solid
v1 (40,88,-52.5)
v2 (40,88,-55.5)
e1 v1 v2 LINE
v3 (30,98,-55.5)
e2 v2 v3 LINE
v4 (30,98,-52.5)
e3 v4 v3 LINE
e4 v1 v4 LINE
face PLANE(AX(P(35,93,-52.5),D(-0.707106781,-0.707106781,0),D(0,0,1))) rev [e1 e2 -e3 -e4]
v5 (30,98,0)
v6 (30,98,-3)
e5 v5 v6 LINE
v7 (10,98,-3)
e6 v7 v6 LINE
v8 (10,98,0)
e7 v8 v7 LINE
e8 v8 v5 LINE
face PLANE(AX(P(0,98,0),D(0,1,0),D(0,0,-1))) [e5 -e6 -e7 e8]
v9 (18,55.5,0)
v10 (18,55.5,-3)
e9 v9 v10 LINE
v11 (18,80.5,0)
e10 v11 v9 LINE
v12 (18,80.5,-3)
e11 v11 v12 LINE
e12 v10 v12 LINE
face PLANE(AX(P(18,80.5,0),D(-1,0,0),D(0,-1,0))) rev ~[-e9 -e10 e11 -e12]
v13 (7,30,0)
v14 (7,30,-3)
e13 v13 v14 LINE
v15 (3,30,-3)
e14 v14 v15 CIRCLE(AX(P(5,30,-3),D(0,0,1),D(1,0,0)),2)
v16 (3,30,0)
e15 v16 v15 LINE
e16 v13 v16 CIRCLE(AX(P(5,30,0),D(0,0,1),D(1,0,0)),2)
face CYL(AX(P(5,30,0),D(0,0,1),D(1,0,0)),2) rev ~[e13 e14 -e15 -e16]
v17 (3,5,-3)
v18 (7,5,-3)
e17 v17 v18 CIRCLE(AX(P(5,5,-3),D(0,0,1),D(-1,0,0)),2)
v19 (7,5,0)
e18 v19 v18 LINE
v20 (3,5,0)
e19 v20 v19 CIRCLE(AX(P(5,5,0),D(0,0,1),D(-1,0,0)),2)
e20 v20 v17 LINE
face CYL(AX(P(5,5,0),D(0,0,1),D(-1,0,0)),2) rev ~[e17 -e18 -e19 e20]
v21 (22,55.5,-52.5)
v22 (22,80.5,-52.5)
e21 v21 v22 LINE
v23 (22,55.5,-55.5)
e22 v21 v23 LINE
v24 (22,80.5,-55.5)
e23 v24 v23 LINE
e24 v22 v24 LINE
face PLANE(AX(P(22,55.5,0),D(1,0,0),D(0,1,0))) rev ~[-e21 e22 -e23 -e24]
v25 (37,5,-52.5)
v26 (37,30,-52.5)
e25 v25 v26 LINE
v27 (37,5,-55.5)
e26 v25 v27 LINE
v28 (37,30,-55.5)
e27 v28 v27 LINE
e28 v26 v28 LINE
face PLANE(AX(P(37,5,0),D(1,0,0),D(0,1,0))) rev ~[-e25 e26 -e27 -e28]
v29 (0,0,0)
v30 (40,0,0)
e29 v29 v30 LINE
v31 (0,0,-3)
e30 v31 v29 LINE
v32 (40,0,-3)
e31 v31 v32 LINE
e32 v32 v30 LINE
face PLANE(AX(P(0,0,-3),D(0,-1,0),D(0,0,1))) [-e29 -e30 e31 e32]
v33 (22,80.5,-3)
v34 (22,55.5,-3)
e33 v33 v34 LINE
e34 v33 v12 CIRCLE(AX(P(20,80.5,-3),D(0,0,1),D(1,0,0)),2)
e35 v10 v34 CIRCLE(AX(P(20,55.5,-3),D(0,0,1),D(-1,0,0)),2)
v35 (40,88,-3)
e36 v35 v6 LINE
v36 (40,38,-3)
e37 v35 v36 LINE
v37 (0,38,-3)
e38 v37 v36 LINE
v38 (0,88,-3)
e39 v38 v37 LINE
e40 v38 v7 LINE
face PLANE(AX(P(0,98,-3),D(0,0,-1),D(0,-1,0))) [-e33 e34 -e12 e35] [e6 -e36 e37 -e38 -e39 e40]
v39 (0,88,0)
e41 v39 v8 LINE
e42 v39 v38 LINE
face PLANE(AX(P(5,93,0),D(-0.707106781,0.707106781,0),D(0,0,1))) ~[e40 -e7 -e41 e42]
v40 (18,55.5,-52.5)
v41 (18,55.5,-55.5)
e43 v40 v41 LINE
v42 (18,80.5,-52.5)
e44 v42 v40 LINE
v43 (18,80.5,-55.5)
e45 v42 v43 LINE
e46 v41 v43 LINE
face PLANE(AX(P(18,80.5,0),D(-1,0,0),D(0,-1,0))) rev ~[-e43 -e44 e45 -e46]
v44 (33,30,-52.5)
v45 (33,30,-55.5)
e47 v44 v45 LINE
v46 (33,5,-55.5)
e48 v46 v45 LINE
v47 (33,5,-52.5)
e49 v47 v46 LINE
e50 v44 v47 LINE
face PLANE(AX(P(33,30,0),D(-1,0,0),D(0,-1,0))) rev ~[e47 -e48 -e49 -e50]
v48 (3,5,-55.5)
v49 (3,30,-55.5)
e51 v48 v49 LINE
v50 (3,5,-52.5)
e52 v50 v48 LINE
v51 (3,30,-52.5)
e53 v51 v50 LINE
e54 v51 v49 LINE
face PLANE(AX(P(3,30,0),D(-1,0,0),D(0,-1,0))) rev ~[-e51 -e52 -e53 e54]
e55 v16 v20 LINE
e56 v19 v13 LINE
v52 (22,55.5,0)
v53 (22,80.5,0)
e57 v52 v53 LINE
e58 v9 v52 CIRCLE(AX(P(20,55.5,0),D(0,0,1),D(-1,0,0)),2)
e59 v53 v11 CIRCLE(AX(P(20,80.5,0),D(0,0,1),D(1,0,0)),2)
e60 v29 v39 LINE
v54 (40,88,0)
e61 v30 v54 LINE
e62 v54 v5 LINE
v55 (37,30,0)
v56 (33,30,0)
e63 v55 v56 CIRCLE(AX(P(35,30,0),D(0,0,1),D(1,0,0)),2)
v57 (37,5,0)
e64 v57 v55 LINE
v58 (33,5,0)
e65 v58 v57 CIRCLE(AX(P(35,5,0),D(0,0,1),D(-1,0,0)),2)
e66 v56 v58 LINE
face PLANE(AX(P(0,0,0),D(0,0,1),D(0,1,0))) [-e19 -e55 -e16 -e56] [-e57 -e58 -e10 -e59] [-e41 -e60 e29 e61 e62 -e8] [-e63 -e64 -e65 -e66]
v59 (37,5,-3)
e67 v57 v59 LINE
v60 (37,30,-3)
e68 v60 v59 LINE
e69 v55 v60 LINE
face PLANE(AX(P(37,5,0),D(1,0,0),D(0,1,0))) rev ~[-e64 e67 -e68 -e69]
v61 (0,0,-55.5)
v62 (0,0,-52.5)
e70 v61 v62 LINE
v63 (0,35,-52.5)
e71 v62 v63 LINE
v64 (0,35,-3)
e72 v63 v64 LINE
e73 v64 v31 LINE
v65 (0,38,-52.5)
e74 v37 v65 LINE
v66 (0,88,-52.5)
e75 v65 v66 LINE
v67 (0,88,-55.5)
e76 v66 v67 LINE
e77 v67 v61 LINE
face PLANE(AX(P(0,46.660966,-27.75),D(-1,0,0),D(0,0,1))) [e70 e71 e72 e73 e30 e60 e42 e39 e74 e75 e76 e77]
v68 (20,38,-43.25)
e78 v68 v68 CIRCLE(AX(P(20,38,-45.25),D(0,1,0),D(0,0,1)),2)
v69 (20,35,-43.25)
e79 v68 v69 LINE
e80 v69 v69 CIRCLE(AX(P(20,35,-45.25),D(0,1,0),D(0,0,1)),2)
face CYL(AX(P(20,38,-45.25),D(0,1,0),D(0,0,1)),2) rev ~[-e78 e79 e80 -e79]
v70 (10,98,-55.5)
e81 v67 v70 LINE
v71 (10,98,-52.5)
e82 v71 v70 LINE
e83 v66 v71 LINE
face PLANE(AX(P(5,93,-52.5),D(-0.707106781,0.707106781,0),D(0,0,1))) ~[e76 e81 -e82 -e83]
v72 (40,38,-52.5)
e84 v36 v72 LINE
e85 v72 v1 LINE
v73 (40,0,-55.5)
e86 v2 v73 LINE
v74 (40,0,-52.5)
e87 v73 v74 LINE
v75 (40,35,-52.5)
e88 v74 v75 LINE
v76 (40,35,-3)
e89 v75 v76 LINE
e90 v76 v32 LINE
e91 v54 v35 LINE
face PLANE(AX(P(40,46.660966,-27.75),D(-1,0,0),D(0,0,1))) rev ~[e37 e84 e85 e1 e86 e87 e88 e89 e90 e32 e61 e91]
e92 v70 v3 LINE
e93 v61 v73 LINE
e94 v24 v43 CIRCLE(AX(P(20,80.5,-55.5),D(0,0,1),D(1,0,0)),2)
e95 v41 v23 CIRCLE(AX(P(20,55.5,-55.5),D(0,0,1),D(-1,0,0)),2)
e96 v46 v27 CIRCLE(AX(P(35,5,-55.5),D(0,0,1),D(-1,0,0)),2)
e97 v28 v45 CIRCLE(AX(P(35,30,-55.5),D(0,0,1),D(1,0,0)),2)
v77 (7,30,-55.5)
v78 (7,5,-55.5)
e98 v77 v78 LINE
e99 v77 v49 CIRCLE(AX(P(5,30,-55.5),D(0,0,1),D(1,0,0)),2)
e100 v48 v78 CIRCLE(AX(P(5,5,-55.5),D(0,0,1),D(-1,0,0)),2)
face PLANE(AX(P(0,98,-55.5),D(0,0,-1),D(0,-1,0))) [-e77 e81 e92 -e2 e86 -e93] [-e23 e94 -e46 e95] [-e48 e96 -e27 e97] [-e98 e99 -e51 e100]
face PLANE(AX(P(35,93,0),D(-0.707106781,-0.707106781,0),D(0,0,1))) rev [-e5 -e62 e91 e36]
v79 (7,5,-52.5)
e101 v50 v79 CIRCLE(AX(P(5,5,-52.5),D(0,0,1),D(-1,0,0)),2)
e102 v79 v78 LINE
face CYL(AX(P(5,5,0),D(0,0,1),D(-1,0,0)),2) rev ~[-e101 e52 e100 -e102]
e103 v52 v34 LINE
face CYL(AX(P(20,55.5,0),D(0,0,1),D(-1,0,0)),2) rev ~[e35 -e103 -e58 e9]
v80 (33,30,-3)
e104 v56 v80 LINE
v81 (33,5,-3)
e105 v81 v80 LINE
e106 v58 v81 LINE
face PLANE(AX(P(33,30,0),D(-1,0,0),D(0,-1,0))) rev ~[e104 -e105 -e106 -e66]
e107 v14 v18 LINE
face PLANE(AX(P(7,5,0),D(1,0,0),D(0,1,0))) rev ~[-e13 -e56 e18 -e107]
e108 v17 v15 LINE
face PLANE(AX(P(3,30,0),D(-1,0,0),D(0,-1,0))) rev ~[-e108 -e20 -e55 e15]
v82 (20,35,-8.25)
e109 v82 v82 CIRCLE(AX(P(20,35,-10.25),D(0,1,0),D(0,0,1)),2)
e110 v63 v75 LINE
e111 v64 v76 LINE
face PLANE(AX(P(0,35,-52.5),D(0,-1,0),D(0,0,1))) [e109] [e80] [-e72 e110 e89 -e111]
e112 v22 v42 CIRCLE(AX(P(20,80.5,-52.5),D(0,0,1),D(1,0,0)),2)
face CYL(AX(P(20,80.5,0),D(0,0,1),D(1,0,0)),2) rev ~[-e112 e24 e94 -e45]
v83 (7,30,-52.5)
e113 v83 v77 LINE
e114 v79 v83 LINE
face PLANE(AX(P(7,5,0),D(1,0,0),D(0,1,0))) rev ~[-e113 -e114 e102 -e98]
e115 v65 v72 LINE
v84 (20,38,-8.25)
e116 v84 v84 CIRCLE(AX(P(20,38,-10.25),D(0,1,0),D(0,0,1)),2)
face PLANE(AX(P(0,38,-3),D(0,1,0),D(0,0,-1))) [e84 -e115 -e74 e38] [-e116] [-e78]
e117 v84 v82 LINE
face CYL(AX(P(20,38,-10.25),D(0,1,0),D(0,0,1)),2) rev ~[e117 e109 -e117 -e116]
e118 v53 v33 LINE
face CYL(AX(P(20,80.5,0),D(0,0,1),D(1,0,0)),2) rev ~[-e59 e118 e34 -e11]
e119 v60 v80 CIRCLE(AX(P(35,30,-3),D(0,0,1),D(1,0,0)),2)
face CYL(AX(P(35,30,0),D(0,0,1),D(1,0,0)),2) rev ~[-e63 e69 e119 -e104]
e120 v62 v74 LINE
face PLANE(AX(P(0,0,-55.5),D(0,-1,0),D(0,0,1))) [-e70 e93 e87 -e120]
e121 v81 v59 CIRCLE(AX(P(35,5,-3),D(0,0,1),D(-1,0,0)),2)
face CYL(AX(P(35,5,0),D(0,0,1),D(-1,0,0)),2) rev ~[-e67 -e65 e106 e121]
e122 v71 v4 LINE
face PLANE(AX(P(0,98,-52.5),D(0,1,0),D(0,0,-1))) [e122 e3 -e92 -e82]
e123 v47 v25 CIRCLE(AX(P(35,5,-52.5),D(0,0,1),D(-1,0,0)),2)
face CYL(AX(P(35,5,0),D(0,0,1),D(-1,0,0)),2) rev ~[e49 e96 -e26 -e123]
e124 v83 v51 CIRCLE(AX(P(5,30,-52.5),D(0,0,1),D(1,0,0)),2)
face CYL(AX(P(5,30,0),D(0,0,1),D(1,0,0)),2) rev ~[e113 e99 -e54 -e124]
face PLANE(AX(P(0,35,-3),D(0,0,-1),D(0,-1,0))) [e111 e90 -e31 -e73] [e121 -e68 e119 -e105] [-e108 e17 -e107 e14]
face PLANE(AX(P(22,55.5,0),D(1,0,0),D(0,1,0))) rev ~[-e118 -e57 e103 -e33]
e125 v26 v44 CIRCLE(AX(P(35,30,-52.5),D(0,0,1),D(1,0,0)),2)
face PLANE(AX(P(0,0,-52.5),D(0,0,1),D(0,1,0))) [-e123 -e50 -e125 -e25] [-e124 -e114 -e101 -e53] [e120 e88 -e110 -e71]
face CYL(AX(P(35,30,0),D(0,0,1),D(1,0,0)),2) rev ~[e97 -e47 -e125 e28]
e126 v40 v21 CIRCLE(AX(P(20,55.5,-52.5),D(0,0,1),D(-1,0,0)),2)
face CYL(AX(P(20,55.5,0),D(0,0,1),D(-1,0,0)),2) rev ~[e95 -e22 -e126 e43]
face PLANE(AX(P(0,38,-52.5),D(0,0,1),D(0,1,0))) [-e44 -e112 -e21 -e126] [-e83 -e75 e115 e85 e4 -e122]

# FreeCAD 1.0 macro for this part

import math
import FreeCAD as App
import Part
import Sketcher
from FreeCAD import Vector
Q = App.Units.Quantity


def edges_at(feature, points):
    """Names of the edges that pass closest to the given points."""
    edges = feature.Shape.Edges
    near = lambda p: min(range(len(edges)), key=lambda i: edges[i].distToShape(Part.Vertex(*p))[0])
    return sorted({f"Edge{near(p) + 1}" for p in points})

doc = App.newDocument("Part")
params = doc.addObject("Spreadsheet::Sheet", "Params")
for row, (alias, value) in enumerate([
    ("sketch1_width", "98 mm"),
    ("sketch1_width2", "35 mm"),
    ("sketch1_width3", "60 mm"),
    ("sketch1_height", "3 mm"),
    ("sketch1_height2", "49.5 mm"),
    ("pad1_length", "40 mm"),
    ("sketch2_radius", "2 mm"),
    ("sketch2_height", "25 mm"),
    ("pocket1_length", "79 mm"),
    ("chamfer_size", "10 mm"),
    ("sketch3_diameter", "4 mm"),
    ("pocket2_length", "9 mm"),
], start=1):
    params.set(f"A{row}", alias)
    params.set(f"B{row}", "=" + value)
    params.setAlias(f"B{row}", alias)

body = doc.addObject("PartDesign::Body", "Body")

sketch1 = doc.addObject("Sketcher::SketchObject", "Sketch")
body.addObject(sketch1)
sketch1.AttachmentSupport = (doc.YZ_Plane, [""])
sketch1.MapMode = "FlatFace"
sketch1.addGeometry([
    Part.LineSegment(Vector(98, 0, 0), Vector(0, 0, 0)),
    Part.LineSegment(Vector(0, 0, 0), Vector(0, -3, 0)),
    Part.LineSegment(Vector(0, -3, 0), Vector(35, -3, 0)),
    Part.LineSegment(Vector(35, -3, 0), Vector(35, -52.5, 0)),
    Part.LineSegment(Vector(35, -52.5, 0), Vector(0, -52.5, 0)),
    Part.LineSegment(Vector(0, -52.5, 0), Vector(0, -55.5, 0)),
    Part.LineSegment(Vector(0, -55.5, 0), Vector(98, -55.5, 0)),
    Part.LineSegment(Vector(98, -55.5, 0), Vector(98, -52.5, 0)),
    Part.LineSegment(Vector(98, -52.5, 0), Vector(38, -52.5, 0)),
    Part.LineSegment(Vector(38, -52.5, 0), Vector(38, -3, 0)),
    Part.LineSegment(Vector(38, -3, 0), Vector(98, -3, 0)),
    Part.LineSegment(Vector(98, -3, 0), Vector(98, 0, 0)),
], False)
sketch1.addConstraint([
    Sketcher.Constraint("Coincident", 0, 2, 1, 1),
    Sketcher.Constraint("Coincident", 1, 2, 2, 1),
    Sketcher.Constraint("Coincident", 2, 2, 3, 1),
    Sketcher.Constraint("Coincident", 3, 2, 4, 1),
    Sketcher.Constraint("Coincident", 4, 2, 5, 1),
    Sketcher.Constraint("Coincident", 5, 2, 6, 1),
    Sketcher.Constraint("Coincident", 6, 2, 7, 1),
    Sketcher.Constraint("Coincident", 7, 2, 8, 1),
    Sketcher.Constraint("Coincident", 8, 2, 9, 1),
    Sketcher.Constraint("Coincident", 9, 2, 10, 1),
    Sketcher.Constraint("Coincident", 10, 2, 11, 1),
    Sketcher.Constraint("Coincident", 11, 2, 0, 1),
    Sketcher.Constraint("Horizontal", 0),
    Sketcher.Constraint("Vertical", 1),
    Sketcher.Constraint("Horizontal", 2),
    Sketcher.Constraint("Vertical", 3),
    Sketcher.Constraint("Horizontal", 4),
    Sketcher.Constraint("Vertical", 5),
    Sketcher.Constraint("Horizontal", 6),
    Sketcher.Constraint("Vertical", 7),
    Sketcher.Constraint("Horizontal", 8),
    Sketcher.Constraint("Vertical", 9),
    Sketcher.Constraint("Horizontal", 10),
    Sketcher.Constraint("Vertical", 11),
    Sketcher.Constraint("Coincident", 0, 2, -1, 1),
    Sketcher.Constraint("PointOnObject", 4, 2, -2),
    Sketcher.Constraint("Horizontal", 4, 2, 7, 2),
    Sketcher.Constraint("Horizontal", 2, 2, 9, 2),
    Sketcher.Constraint("Vertical", 7, 2, 10, 2),
    Sketcher.Constraint("Equal", 1, 5),
    Sketcher.Constraint("DistanceX", 0, 2, 0, 1, Q("98 mm")),
    Sketcher.Constraint("DistanceX", 2, 1, 2, 2, Q("35 mm")),
    Sketcher.Constraint("DistanceX", 8, 2, 8, 1, Q("60 mm")),
    Sketcher.Constraint("DistanceY", 1, 2, 1, 1, Q("3 mm")),
    Sketcher.Constraint("DistanceY", 3, 2, 3, 1, Q("49.5 mm")),
])
sketch1.setExpression("Constraints[30]", "Params.sketch1_width")
sketch1.setExpression("Constraints[31]", "Params.sketch1_width2")
sketch1.setExpression("Constraints[32]", "Params.sketch1_width3")
sketch1.setExpression("Constraints[33]", "Params.sketch1_height")
sketch1.setExpression("Constraints[34]", "Params.sketch1_height2")
pad1 = doc.addObject("PartDesign::Pad", "Pad")
body.addObject(pad1)
pad1.Profile = sketch1
pad1.setExpression("Length", "Params.pad1_length")

sketch2 = doc.addObject("Sketcher::SketchObject", "Sketch001")
body.addObject(sketch2)
sketch2.AttachmentSupport = (doc.XY_Plane, [""])
sketch2.MapMode = "FlatFace"
sketch2.addGeometry([
    Part.LineSegment(Vector(18, 80.5, 0), Vector(18, 55.5, 0)),
    Part.ArcOfCircle(Part.Circle(Vector(20, 55.5, 0), Vector(0, 0, 1), 2), math.radians(180), math.radians(360)),
    Part.LineSegment(Vector(22, 55.5, 0), Vector(22, 80.5, 0)),
    Part.ArcOfCircle(Part.Circle(Vector(20, 80.5, 0), Vector(0, 0, 1), 2), math.radians(0), math.radians(180)),
    Part.LineSegment(Vector(3, 30, 0), Vector(3, 5, 0)),
    Part.ArcOfCircle(Part.Circle(Vector(5, 5, 0), Vector(0, 0, 1), 2), math.radians(180), math.radians(360)),
    Part.LineSegment(Vector(7, 5, 0), Vector(7, 30, 0)),
    Part.ArcOfCircle(Part.Circle(Vector(5, 30, 0), Vector(0, 0, 1), 2), math.radians(0), math.radians(180)),
    Part.LineSegment(Vector(33, 30, 0), Vector(33, 5, 0)),
    Part.ArcOfCircle(Part.Circle(Vector(35, 5, 0), Vector(0, 0, 1), 2), math.radians(180), math.radians(360)),
    Part.LineSegment(Vector(37, 5, 0), Vector(37, 30, 0)),
    Part.ArcOfCircle(Part.Circle(Vector(35, 30, 0), Vector(0, 0, 1), 2), math.radians(0), math.radians(180)),
], False)
sketch2.addConstraint([
    Sketcher.Constraint("Tangent", 0, 2, 1, 1),
    Sketcher.Constraint("Tangent", 1, 2, 2, 1),
    Sketcher.Constraint("Tangent", 2, 2, 3, 1),
    Sketcher.Constraint("Tangent", 3, 2, 0, 1),
    Sketcher.Constraint("Tangent", 4, 2, 5, 1),
    Sketcher.Constraint("Tangent", 5, 2, 6, 1),
    Sketcher.Constraint("Tangent", 6, 2, 7, 1),
    Sketcher.Constraint("Tangent", 7, 2, 4, 1),
    Sketcher.Constraint("Tangent", 8, 2, 9, 1),
    Sketcher.Constraint("Tangent", 9, 2, 10, 1),
    Sketcher.Constraint("Tangent", 10, 2, 11, 1),
    Sketcher.Constraint("Tangent", 11, 2, 8, 1),
    Sketcher.Constraint("Vertical", 0),
    Sketcher.Constraint("Vertical", 2),
    Sketcher.Constraint("Vertical", 4),
    Sketcher.Constraint("Vertical", 6),
    Sketcher.Constraint("Vertical", 8),
    Sketcher.Constraint("Vertical", 10),
    Sketcher.Constraint("Equal", 3, 5),
    Sketcher.Constraint("Equal", 7, 9),
    Sketcher.Constraint("Horizontal", 5, 3, 9, 3),
    Sketcher.Constraint("Horizontal", 7, 3, 11, 3),
    Sketcher.Constraint("Equal", 2, 4),
    Sketcher.Constraint("Radius", 1, Q("2 mm")),
    Sketcher.Constraint("DistanceY", 0, 2, 0, 1, Q("25 mm")),
    Sketcher.Constraint("DistanceX", -1, 1, 1, 3, Q("20 mm")),
    Sketcher.Constraint("DistanceX", -1, 1, 5, 3, Q("5 mm")),
    Sketcher.Constraint("DistanceY", -1, 1, 5, 3, Q("5 mm")),
    Sketcher.Constraint("DistanceX", -1, 1, 9, 3, Q("35 mm")),
    Sketcher.Constraint("DistanceY", -1, 1, 1, 3, Q("55.5 mm")),
])
sketch2.setExpression("Constraints[23]", "Params.sketch2_radius")
sketch2.setExpression("Constraints[24]", "Params.sketch2_height")
pocket1 = doc.addObject("PartDesign::Pocket", "Pocket")
body.addObject(pocket1)
pocket1.Profile = sketch2
pocket1.setExpression("Length", "Params.pocket1_length")
doc.recompute()

chamfer = doc.addObject("PartDesign::Chamfer", "Chamfer")
body.addObject(chamfer)
chamfer.Base = (pocket1, edges_at(pocket1, [
    (0, 98, -1.5),
    (0, 98, -54),
    (40, 98, -54),
    (40, 98, -1.5),
]))
chamfer.setExpression("Size", "Params.chamfer_size")

sketch3 = doc.addObject("Sketcher::SketchObject", "Sketch002")
body.addObject(sketch3)
sketch3.AttachmentSupport = (doc.XZ_Plane, [""])
sketch3.MapMode = "FlatFace"
sketch3.AttachmentOffset = App.Placement(Vector(0, 0, -38), App.Rotation())
sketch3.addGeometry([
    Part.Circle(Vector(20, -45.2, 0), Vector(0, 0, 1), 2),
    Part.Circle(Vector(20, -10.2, 0), Vector(0, 0, 1), 2),
], False)
sketch3.addConstraint([
    Sketcher.Constraint("Equal", 0, 1),
    Sketcher.Constraint("Vertical", 0, 3, 1, 3),
    Sketcher.Constraint("Diameter", 0, Q("4 mm")),
    Sketcher.Constraint("DistanceX", -1, 1, 0, 3, Q("20 mm")),
    Sketcher.Constraint("DistanceY", 0, 3, 1, 3, Q("35 mm")),
    Sketcher.Constraint("DistanceY", 0, 3, -1, 1, Q("45.25 mm")),
])
sketch3.setExpression("Constraints[2]", "Params.sketch3_diameter")
pocket2 = doc.addObject("PartDesign::Pocket", "Pocket001")
body.addObject(pocket2)
pocket2.Profile = sketch3
pocket2.setExpression("Length", "Params.pocket2_length")
pocket2.Reversed = True

doc.recompute()
